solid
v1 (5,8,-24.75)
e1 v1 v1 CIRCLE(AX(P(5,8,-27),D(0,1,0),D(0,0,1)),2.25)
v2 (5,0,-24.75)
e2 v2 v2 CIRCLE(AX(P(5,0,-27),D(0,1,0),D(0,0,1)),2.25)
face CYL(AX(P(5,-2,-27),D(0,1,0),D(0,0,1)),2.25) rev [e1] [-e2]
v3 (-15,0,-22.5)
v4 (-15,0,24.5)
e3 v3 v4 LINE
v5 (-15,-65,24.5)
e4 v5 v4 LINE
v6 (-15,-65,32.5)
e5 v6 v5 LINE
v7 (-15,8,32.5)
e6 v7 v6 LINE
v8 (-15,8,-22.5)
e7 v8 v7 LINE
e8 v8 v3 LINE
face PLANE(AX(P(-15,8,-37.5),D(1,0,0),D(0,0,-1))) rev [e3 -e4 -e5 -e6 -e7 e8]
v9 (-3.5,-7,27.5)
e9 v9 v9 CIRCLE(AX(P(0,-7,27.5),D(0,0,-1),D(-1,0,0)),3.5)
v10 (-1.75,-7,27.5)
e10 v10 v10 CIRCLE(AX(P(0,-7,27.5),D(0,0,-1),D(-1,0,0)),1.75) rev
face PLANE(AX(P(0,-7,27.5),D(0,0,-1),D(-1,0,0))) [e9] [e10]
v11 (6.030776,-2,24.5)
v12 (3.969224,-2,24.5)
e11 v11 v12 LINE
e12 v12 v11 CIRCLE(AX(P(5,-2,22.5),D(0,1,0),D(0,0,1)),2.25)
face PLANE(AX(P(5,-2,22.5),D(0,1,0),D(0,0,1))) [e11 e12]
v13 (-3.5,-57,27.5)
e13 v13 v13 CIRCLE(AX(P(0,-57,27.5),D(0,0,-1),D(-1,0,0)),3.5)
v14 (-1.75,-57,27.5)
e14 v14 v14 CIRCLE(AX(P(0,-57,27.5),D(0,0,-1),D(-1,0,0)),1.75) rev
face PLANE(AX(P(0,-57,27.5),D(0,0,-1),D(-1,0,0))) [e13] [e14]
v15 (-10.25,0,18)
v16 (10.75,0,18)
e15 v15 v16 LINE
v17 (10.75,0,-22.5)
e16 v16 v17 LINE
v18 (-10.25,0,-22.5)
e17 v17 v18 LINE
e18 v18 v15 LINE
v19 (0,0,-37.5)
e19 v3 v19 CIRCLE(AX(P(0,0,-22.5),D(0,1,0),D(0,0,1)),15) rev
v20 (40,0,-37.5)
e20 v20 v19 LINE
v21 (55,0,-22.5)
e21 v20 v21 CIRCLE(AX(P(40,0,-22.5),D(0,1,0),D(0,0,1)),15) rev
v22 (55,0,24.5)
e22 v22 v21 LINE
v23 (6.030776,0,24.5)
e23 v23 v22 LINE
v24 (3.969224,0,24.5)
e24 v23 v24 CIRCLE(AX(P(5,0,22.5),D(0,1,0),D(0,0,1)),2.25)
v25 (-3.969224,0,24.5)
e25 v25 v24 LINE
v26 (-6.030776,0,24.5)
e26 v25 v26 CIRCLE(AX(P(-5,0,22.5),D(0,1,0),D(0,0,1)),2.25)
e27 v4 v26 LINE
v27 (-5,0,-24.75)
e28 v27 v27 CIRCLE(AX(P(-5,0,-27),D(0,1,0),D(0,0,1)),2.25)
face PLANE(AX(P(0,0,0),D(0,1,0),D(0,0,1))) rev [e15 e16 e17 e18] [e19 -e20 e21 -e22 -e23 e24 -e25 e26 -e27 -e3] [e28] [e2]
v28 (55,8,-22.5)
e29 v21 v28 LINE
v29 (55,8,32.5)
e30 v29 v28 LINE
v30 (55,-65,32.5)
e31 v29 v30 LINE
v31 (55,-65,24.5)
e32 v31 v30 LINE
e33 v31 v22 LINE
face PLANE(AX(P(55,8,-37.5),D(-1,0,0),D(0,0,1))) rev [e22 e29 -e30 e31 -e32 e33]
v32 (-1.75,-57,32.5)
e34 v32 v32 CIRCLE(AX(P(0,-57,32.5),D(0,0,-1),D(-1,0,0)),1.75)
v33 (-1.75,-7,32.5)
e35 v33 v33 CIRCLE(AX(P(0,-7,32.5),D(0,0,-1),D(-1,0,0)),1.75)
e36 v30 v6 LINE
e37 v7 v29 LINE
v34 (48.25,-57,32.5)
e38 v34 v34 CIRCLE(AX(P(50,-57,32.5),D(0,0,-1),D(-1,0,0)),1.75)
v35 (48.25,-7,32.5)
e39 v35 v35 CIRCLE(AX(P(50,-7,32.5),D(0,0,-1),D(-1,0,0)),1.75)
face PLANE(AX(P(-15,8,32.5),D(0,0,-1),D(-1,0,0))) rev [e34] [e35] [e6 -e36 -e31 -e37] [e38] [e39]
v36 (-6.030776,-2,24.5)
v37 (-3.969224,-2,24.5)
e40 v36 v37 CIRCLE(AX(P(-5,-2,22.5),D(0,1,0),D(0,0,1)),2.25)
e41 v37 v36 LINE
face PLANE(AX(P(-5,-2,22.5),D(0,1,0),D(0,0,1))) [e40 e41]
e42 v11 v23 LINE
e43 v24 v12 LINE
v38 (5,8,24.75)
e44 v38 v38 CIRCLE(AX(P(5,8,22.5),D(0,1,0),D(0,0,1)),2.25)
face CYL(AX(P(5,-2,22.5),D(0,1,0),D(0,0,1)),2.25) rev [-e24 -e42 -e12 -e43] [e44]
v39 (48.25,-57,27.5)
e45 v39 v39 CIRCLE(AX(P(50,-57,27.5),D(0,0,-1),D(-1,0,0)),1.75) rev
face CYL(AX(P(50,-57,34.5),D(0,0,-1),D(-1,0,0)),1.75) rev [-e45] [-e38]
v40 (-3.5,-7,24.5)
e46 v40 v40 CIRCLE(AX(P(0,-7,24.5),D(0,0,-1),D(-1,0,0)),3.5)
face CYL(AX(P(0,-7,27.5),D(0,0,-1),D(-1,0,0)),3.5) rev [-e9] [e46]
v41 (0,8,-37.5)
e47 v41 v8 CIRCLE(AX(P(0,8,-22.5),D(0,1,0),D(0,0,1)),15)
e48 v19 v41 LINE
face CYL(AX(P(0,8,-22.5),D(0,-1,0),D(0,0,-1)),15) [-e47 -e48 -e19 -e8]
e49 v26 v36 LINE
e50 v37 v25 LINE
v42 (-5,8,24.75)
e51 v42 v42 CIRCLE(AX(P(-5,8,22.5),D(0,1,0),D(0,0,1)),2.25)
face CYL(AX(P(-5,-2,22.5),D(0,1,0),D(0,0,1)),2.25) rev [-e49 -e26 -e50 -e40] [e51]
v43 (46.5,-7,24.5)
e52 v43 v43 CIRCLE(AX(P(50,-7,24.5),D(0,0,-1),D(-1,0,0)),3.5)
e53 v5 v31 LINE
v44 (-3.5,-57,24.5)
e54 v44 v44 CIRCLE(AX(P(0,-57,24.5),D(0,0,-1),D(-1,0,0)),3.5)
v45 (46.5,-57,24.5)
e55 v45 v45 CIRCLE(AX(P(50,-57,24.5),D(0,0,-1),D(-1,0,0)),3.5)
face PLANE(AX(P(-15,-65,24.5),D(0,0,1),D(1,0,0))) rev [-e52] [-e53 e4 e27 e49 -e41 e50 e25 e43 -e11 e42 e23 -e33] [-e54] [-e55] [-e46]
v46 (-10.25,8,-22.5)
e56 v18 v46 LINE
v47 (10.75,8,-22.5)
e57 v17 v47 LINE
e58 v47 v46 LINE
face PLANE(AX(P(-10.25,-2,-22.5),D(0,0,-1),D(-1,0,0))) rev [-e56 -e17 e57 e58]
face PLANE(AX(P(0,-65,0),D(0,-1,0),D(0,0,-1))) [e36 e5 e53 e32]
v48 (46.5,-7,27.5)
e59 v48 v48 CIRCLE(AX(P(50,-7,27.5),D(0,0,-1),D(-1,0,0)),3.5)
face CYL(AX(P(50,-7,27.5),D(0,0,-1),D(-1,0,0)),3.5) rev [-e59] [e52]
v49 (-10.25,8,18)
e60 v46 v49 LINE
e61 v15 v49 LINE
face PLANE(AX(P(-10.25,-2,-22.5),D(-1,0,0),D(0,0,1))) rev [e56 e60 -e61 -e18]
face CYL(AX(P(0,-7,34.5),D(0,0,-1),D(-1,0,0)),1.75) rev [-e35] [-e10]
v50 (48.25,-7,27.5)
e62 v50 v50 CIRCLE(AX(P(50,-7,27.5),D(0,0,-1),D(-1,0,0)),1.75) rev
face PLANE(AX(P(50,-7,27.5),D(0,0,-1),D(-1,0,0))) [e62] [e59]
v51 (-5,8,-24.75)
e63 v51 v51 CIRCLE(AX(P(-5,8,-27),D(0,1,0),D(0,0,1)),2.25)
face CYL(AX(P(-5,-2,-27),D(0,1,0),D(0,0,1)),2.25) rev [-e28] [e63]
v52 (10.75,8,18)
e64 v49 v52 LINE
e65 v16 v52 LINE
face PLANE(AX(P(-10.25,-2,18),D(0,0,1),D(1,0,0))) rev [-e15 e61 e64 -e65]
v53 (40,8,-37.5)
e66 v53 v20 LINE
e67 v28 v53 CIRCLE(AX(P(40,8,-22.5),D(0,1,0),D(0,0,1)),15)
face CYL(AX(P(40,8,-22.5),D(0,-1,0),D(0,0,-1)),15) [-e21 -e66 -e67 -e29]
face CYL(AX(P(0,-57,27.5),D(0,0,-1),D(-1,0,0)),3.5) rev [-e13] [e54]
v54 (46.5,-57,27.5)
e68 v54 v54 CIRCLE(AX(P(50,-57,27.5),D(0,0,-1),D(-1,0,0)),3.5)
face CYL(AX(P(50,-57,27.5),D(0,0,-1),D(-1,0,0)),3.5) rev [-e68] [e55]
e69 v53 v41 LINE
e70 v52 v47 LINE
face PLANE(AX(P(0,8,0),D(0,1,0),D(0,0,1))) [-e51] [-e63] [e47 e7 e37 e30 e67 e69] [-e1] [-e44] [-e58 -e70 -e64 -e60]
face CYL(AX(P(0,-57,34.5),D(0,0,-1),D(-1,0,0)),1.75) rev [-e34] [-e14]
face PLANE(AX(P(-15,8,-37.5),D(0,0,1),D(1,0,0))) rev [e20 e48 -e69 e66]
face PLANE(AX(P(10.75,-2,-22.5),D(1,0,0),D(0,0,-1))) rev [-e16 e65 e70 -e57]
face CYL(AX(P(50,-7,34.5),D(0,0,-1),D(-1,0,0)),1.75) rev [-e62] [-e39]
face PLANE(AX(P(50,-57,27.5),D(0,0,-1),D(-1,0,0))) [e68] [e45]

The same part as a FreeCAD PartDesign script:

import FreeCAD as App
import Part
import Sketcher
from FreeCAD import Vector
Q = App.Units.Quantity


def edges_at(feature, points):
    """Names of the edges that pass closest to the given points."""
    edges = feature.Shape.Edges
    near = lambda p: min(range(len(edges)), key=lambda i: edges[i].distToShape(Part.Vertex(*p))[0])
    return sorted({f"Edge{near(p) + 1}" for p in points})


def add_polygon(sketch, points):
    """Adds a closed chain of lines whose ends are joined by coincident constraints."""
    first, n = sketch.GeometryCount, len(points)
    for a, b in zip(points, points[1:] + points[:1]):
        sketch.addGeometry(Part.LineSegment(App.Vector(*a, 0), App.Vector(*b, 0)), False)
    for i in range(n):
        sketch.addConstraint(Sketcher.Constraint("Coincident", first + i, 2, first + (i + 1) % n, 1))

doc = App.newDocument("Part")
body = doc.addObject("PartDesign::Body", "Body")

# Sketch on XZ plane
sketch1 = body.newObject("Sketcher::SketchObject", "Sketch")
sketch1.AttachmentSupport = (doc.getObject("XZ_Plane"), [""])
sketch1.MapMode = "FlatFace"
add_polygon(sketch1, [(-15, -38), (-15, 32), (55, 32), (55, -38)])  # lines 0-3
sketch1.addConstraint(Sketcher.Constraint("Vertical", 0))
sketch1.addConstraint(Sketcher.Constraint("Horizontal", 1))
sketch1.addConstraint(Sketcher.Constraint("Vertical", 2))
sketch1.addConstraint(Sketcher.Constraint("Horizontal", 3))
sketch1.addConstraint(Sketcher.Constraint("Equal", 3, 0))
sketch1.addConstraint(Sketcher.Constraint("DistanceX", 1, 1, 1, 2, Q("70 mm")))
sketch1.addConstraint(Sketcher.Constraint("DistanceX", 0, 2, -1, 1, Q("15 mm")))
sketch1.addConstraint(Sketcher.Constraint("DistanceY", -1, 1, 0, 2, Q("32.5 mm")))
pad1 = body.newObject("PartDesign::Pad", "Pad")
pad1.Profile = sketch1
pad1.Length = 8
pad1.Reversed = True

# Sketch on XZ plane
sketch2 = body.newObject("Sketcher::SketchObject", "Sketch001")
sketch2.AttachmentSupport = (doc.getObject("XZ_Plane"), [""])
sketch2.MapMode = "FlatFace"
add_polygon(sketch2, [(55, 24), (55, 32), (-15, 32), (-15, 24)])  # lines 0-3
sketch2.addConstraint(Sketcher.Constraint("Vertical", 0))
sketch2.addConstraint(Sketcher.Constraint("Horizontal", 1))
sketch2.addConstraint(Sketcher.Constraint("Vertical", 2))
sketch2.addConstraint(Sketcher.Constraint("Horizontal", 3))
sketch2.addConstraint(Sketcher.Constraint("DistanceX", 1, 2, 1, 1, Q("70 mm")))
sketch2.addConstraint(Sketcher.Constraint("DistanceY", 0, 1, 0, 2, Q("8 mm")))
sketch2.addConstraint(Sketcher.Constraint("DistanceX", -1, 1, 0, 2, Q("55 mm")))
sketch2.addConstraint(Sketcher.Constraint("DistanceY", -1, 1, 0, 2, Q("32.5 mm")))
pad2 = body.newObject("PartDesign::Pad", "Pad001")
pad2.Profile = sketch2
pad2.Length = 65

# Sketch on XY plane
sketch3 = body.newObject("Sketcher::SketchObject", "Sketch002")
sketch3.AttachmentSupport = (doc.getObject("XY_Plane"), [""])
sketch3.MapMode = "FlatFace"
sketch3.AttachmentOffset = App.Placement(Vector(0, 0, 24.5), App.Rotation())
sketch3.addGeometry(Part.Circle(Vector(50, -7, 0), Vector(0, 0, 1), 1.8), False)
sketch3.addGeometry(Part.Circle(Vector(0, -7, 0), Vector(0, 0, 1), 1.8), False)
sketch3.addGeometry(Part.Circle(Vector(50, -57, 0), Vector(0, 0, 1), 1.8), False)
sketch3.addGeometry(Part.Circle(Vector(0, -57, 0), Vector(0, 0, 1), 1.8), False)
sketch3.addConstraint(Sketcher.Constraint("Equal", 0, 1))
sketch3.addConstraint(Sketcher.Constraint("Equal", 1, 2))
sketch3.addConstraint(Sketcher.Constraint("Equal", 2, 3))
sketch3.addConstraint(Sketcher.Constraint("PointOnObject", 1, 3, -2))
sketch3.addConstraint(Sketcher.Constraint("PointOnObject", 3, 3, -2))
sketch3.addConstraint(Sketcher.Constraint("Horizontal", 0, 3, 1, 3))
sketch3.addConstraint(Sketcher.Constraint("Horizontal", 2, 3, 3, 3))
sketch3.addConstraint(Sketcher.Constraint("Vertical", 0, 3, 2, 3))
sketch3.addConstraint(Sketcher.Constraint("Diameter", 0, Q("3.5 mm")))
sketch3.addConstraint(Sketcher.Constraint("DistanceX", -1, 1, 0, 3, Q("50 mm")))
sketch3.addConstraint(Sketcher.Constraint("DistanceY", 0, 3, -1, 1, Q("7 mm")))
sketch3.addConstraint(Sketcher.Constraint("DistanceY", 2, 3, -1, 1, Q("57 mm")))
pocket1 = body.newObject("PartDesign::Pocket", "Pocket")
pocket1.Profile = sketch3
pocket1.Length = 10
pocket1.Reversed = True

# Sketch on XY plane
sketch4 = body.newObject("Sketcher::SketchObject", "Sketch003")
sketch4.AttachmentSupport = (doc.getObject("XY_Plane"), [""])
sketch4.MapMode = "FlatFace"
sketch4.AttachmentOffset = App.Placement(Vector(0, 0, 24.5), App.Rotation())
sketch4.addGeometry(Part.Circle(Vector(50, -7, 0), Vector(0, 0, 1), 3.5), False)
sketch4.addGeometry(Part.Circle(Vector(0, -7, 0), Vector(0, 0, 1), 3.5), False)
sketch4.addGeometry(Part.Circle(Vector(0, -57, 0), Vector(0, 0, 1), 3.5), False)
sketch4.addGeometry(Part.Circle(Vector(50, -57, 0), Vector(0, 0, 1), 3.5), False)
sketch4.addConstraint(Sketcher.Constraint("Equal", 0, 1))
sketch4.addConstraint(Sketcher.Constraint("Equal", 1, 2))
sketch4.addConstraint(Sketcher.Constraint("Equal", 2, 3))
sketch4.addConstraint(Sketcher.Constraint("PointOnObject", 1, 3, -2))
sketch4.addConstraint(Sketcher.Constraint("PointOnObject", 2, 3, -2))
sketch4.addConstraint(Sketcher.Constraint("Horizontal", 0, 3, 1, 3))
sketch4.addConstraint(Sketcher.Constraint("Horizontal", 2, 3, 3, 3))
sketch4.addConstraint(Sketcher.Constraint("Vertical", 0, 3, 3, 3))
sketch4.addConstraint(Sketcher.Constraint("Diameter", 0, Q("7 mm")))
sketch4.addConstraint(Sketcher.Constraint("DistanceX", -1, 1, 0, 3, Q("50 mm")))
sketch4.addConstraint(Sketcher.Constraint("DistanceY", 0, 3, -1, 1, Q("7 mm")))
sketch4.addConstraint(Sketcher.Constraint("DistanceY", 2, 3, -1, 1, Q("57 mm")))
pocket2 = body.newObject("PartDesign::Pocket", "Pocket001")
pocket2.Profile = sketch4
pocket2.Length = 3
pocket2.Reversed = True

# Sketch on XZ plane
sketch5 = body.newObject("Sketcher::SketchObject", "Sketch004")
sketch5.AttachmentSupport = (doc.getObject("XZ_Plane"), [""])
sketch5.MapMode = "FlatFace"
sketch5.AttachmentOffset = App.Placement(Vector(0, 0, -8), App.Rotation())
add_polygon(sketch5, [(-10, -22), (-10, 18), (11, 18), (11, -22)])  # lines 0-3
sketch5.addConstraint(Sketcher.Constraint("Vertical", 0))
sketch5.addConstraint(Sketcher.Constraint("Horizontal", 1))
sketch5.addConstraint(Sketcher.Constraint("Vertical", 2))
sketch5.addConstraint(Sketcher.Constraint("Horizontal", 3))
sketch5.addConstraint(Sketcher.Constraint("DistanceX", 1, 1, 1, 2, Q("21 mm")))
sketch5.addConstraint(Sketcher.Constraint("DistanceY", 0, 1, 0, 2, Q("40.5 mm")))
sketch5.addConstraint(Sketcher.Constraint("DistanceY", -1, 1, 0, 2, Q("18 mm")))
sketch5.addConstraint(Sketcher.Constraint("DistanceX", 0, 2, -1, 1, Q("10.25 mm")))
pocket3 = body.newObject("PartDesign::Pocket", "Pocket002")
pocket3.Profile = sketch5
pocket3.Length = 10
pocket3.Reversed = True

# Sketch on XZ plane
sketch6 = body.newObject("Sketcher::SketchObject", "Sketch005")
sketch6.AttachmentSupport = (doc.getObject("XZ_Plane"), [""])
sketch6.MapMode = "FlatFace"
sketch6.AttachmentOffset = App.Placement(Vector(0, 0, -8), App.Rotation())
sketch6.addGeometry(Part.Circle(Vector(-5, -27, 0), Vector(0, 0, 1), 2.2), False)
sketch6.addGeometry(Part.Circle(Vector(5, -27, 0), Vector(0, 0, 1), 2.2), False)
sketch6.addGeometry(Part.Circle(Vector(-5, 22.5, 0), Vector(0, 0, 1), 2.2), False)
sketch6.addGeometry(Part.Circle(Vector(5, 22.5, 0), Vector(0, 0, 1), 2.2), False)
sketch6.addConstraint(Sketcher.Constraint("Equal", 0, 1))
sketch6.addConstraint(Sketcher.Constraint("Equal", 1, 2))
sketch6.addConstraint(Sketcher.Constraint("Equal", 2, 3))
sketch6.addConstraint(Sketcher.Constraint("Symmetric", 0, 3, 1, 3, -2))
sketch6.addConstraint(Sketcher.Constraint("Symmetric", 2, 3, 3, 3, -2))
sketch6.addConstraint(Sketcher.Constraint("Vertical", 0, 3, 2, 3))
sketch6.addConstraint(Sketcher.Constraint("Diameter", 0, Q("4.5 mm")))
sketch6.addConstraint(Sketcher.Constraint("DistanceX", 0, 3, -1, 1, Q("5 mm")))
sketch6.addConstraint(Sketcher.Constraint("DistanceY", 0, 3, -1, 1, Q("27 mm")))
sketch6.addConstraint(Sketcher.Constraint("DistanceY", -1, 1, 2, 3, Q("22.5 mm")))
pocket4 = body.newObject("PartDesign::Pocket", "Pocket003")
pocket4.Profile = sketch6
pocket4.Length = 10
pocket4.Reversed = True
doc.recompute()

fillet = body.newObject("PartDesign::Fillet", "Fillet")
fillet.Base = (pocket4, edges_at(pocket4, [(55, 4, -37.5)]))
fillet.Radius = 15
doc.recompute()

fillet2 = body.newObject("PartDesign::Fillet", "Fillet001")
fillet2.Base = (fillet, edges_at(fillet, [(-15, 4, -37.5)]))
fillet2.Radius = 15

doc.recompute()
